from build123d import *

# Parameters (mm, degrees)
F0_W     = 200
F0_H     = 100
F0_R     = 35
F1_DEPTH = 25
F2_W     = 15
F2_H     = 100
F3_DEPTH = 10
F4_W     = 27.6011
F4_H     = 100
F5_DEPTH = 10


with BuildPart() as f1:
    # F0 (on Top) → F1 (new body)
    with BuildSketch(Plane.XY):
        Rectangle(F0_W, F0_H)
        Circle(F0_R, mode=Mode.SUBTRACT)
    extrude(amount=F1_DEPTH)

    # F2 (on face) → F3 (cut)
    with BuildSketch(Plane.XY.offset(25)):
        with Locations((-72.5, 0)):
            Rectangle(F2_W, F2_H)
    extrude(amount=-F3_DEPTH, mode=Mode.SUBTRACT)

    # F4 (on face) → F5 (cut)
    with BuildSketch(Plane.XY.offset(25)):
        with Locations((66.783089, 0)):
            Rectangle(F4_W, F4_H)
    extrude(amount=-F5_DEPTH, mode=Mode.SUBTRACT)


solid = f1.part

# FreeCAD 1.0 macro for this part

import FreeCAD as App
import Part
import Sketcher
from FreeCAD import Vector


def add_polygon(sketch, points):
    """Adds a closed chain of lines whose ends are joined by coincident constraints."""
    first, n = sketch.GeometryCount, len(points)
    for a, b in zip(points, points[1:] + points[:1]):
        sketch.addGeometry(Part.LineSegment(App.Vector(*a, 0), App.Vector(*b, 0)), False)
    for i in range(n):
        sketch.addConstraint(Sketcher.Constraint("Coincident", first + i, 2, first + (i + 1) % n, 1))

doc = App.newDocument("Part")
body = doc.addObject("PartDesign::Body", "Body")

# Sketch on XY plane
sketch1 = doc.addObject("Sketcher::SketchObject", "Sketch")
body.addObject(sketch1)
sketch1.AttachmentSupport = (doc.XY_Plane, [""])
sketch1.MapMode = "FlatFace"
add_polygon(sketch1, [(-100, 50), (-100, -50), (100, -50), (100, 50)])  # lines 0-3
sketch1.addGeometry(Part.Circle(Vector(0, 0, 0), Vector(0, 0, 1), 35), False)  # 4
sketch1.addConstraint([
    Sketcher.Constraint("Vertical", 0),
    Sketcher.Constraint("Horizontal", 1),
    Sketcher.Constraint("Vertical", 2),
    Sketcher.Constraint("Horizontal", 3),
    Sketcher.Constraint("Coincident", 4, 3, -1, 1),
    Sketcher.Constraint("Symmetric", 0, 2, 2, 2, -1, 1),
    Sketcher.Constraint("Diameter", 4, 70.0),
    Sketcher.Constraint("DistanceX", 1, 1, 1, 2, 200.0),
    Sketcher.Constraint("DistanceY", 0, 2, 0, 1, 100.0),
])
pad1 = doc.addObject("PartDesign::Pad", "Pad")
body.addObject(pad1)
pad1.Profile = sketch1
pad1.Length = 25

# Sketch on XY plane
sketch2 = doc.addObject("Sketcher::SketchObject", "Sketch001")
body.addObject(sketch2)
sketch2.AttachmentSupport = (doc.XY_Plane, [""])
sketch2.MapMode = "FlatFace"
sketch2.AttachmentOffset = App.Placement(Vector(0, 0, 25), App.Rotation())
add_polygon(sketch2, [(-80, 50), (-80, -50), (-65, -50), (-65, 50)])  # lines 0-3
sketch2.addConstraint([
    Sketcher.Constraint("Vertical", 0),
    Sketcher.Constraint("Horizontal", 1),
    Sketcher.Constraint("Vertical", 2),
    Sketcher.Constraint("Horizontal", 3),
    Sketcher.Constraint("DistanceX", 1, 1, 1, 2, 15.0),
    Sketcher.Constraint("DistanceY", 0, 2, 0, 1, 100.0),
    Sketcher.Constraint("DistanceX", 0, 2, -1, 1, 80.0),
    Sketcher.Constraint("DistanceY", 0, 2, -1, 1, 50.0),
])
pocket1 = doc.addObject("PartDesign::Pocket", "Pocket")
body.addObject(pocket1)
pocket1.Profile = sketch2
pocket1.Length = 10

# Sketch on XY plane
sketch3 = doc.addObject("Sketcher::SketchObject", "Sketch002")
body.addObject(sketch3)
sketch3.AttachmentSupport = (doc.XY_Plane, [""])
sketch3.MapMode = "FlatFace"
sketch3.AttachmentOffset = App.Placement(Vector(0, 0, 25), App.Rotation())
add_polygon(sketch3, [(53, 50), (53, -50), (81, -50), (81, 50)])  # lines 0-3
sketch3.addConstraint([
    Sketcher.Constraint("Vertical", 0),
    Sketcher.Constraint("Horizontal", 1),
    Sketcher.Constraint("Vertical", 2),
    Sketcher.Constraint("Horizontal", 3),
    Sketcher.Constraint("DistanceY", 0, 2, 0, 1, 100.0),
    Sketcher.Constraint("DistanceY", 0, 2, -1, 1, 50.0),
    Sketcher.Constraint("DistanceX", 1, 1, 1, 2, 27.6011),
    Sketcher.Constraint("DistanceX", -1, 1, 0, 2, 52.982539),
])
pocket2 = doc.addObject("PartDesign::Pocket", "Pocket001")
body.addObject(pocket2)
pocket2.Profile = sketch3
pocket2.Length = 10

doc.recompute()
